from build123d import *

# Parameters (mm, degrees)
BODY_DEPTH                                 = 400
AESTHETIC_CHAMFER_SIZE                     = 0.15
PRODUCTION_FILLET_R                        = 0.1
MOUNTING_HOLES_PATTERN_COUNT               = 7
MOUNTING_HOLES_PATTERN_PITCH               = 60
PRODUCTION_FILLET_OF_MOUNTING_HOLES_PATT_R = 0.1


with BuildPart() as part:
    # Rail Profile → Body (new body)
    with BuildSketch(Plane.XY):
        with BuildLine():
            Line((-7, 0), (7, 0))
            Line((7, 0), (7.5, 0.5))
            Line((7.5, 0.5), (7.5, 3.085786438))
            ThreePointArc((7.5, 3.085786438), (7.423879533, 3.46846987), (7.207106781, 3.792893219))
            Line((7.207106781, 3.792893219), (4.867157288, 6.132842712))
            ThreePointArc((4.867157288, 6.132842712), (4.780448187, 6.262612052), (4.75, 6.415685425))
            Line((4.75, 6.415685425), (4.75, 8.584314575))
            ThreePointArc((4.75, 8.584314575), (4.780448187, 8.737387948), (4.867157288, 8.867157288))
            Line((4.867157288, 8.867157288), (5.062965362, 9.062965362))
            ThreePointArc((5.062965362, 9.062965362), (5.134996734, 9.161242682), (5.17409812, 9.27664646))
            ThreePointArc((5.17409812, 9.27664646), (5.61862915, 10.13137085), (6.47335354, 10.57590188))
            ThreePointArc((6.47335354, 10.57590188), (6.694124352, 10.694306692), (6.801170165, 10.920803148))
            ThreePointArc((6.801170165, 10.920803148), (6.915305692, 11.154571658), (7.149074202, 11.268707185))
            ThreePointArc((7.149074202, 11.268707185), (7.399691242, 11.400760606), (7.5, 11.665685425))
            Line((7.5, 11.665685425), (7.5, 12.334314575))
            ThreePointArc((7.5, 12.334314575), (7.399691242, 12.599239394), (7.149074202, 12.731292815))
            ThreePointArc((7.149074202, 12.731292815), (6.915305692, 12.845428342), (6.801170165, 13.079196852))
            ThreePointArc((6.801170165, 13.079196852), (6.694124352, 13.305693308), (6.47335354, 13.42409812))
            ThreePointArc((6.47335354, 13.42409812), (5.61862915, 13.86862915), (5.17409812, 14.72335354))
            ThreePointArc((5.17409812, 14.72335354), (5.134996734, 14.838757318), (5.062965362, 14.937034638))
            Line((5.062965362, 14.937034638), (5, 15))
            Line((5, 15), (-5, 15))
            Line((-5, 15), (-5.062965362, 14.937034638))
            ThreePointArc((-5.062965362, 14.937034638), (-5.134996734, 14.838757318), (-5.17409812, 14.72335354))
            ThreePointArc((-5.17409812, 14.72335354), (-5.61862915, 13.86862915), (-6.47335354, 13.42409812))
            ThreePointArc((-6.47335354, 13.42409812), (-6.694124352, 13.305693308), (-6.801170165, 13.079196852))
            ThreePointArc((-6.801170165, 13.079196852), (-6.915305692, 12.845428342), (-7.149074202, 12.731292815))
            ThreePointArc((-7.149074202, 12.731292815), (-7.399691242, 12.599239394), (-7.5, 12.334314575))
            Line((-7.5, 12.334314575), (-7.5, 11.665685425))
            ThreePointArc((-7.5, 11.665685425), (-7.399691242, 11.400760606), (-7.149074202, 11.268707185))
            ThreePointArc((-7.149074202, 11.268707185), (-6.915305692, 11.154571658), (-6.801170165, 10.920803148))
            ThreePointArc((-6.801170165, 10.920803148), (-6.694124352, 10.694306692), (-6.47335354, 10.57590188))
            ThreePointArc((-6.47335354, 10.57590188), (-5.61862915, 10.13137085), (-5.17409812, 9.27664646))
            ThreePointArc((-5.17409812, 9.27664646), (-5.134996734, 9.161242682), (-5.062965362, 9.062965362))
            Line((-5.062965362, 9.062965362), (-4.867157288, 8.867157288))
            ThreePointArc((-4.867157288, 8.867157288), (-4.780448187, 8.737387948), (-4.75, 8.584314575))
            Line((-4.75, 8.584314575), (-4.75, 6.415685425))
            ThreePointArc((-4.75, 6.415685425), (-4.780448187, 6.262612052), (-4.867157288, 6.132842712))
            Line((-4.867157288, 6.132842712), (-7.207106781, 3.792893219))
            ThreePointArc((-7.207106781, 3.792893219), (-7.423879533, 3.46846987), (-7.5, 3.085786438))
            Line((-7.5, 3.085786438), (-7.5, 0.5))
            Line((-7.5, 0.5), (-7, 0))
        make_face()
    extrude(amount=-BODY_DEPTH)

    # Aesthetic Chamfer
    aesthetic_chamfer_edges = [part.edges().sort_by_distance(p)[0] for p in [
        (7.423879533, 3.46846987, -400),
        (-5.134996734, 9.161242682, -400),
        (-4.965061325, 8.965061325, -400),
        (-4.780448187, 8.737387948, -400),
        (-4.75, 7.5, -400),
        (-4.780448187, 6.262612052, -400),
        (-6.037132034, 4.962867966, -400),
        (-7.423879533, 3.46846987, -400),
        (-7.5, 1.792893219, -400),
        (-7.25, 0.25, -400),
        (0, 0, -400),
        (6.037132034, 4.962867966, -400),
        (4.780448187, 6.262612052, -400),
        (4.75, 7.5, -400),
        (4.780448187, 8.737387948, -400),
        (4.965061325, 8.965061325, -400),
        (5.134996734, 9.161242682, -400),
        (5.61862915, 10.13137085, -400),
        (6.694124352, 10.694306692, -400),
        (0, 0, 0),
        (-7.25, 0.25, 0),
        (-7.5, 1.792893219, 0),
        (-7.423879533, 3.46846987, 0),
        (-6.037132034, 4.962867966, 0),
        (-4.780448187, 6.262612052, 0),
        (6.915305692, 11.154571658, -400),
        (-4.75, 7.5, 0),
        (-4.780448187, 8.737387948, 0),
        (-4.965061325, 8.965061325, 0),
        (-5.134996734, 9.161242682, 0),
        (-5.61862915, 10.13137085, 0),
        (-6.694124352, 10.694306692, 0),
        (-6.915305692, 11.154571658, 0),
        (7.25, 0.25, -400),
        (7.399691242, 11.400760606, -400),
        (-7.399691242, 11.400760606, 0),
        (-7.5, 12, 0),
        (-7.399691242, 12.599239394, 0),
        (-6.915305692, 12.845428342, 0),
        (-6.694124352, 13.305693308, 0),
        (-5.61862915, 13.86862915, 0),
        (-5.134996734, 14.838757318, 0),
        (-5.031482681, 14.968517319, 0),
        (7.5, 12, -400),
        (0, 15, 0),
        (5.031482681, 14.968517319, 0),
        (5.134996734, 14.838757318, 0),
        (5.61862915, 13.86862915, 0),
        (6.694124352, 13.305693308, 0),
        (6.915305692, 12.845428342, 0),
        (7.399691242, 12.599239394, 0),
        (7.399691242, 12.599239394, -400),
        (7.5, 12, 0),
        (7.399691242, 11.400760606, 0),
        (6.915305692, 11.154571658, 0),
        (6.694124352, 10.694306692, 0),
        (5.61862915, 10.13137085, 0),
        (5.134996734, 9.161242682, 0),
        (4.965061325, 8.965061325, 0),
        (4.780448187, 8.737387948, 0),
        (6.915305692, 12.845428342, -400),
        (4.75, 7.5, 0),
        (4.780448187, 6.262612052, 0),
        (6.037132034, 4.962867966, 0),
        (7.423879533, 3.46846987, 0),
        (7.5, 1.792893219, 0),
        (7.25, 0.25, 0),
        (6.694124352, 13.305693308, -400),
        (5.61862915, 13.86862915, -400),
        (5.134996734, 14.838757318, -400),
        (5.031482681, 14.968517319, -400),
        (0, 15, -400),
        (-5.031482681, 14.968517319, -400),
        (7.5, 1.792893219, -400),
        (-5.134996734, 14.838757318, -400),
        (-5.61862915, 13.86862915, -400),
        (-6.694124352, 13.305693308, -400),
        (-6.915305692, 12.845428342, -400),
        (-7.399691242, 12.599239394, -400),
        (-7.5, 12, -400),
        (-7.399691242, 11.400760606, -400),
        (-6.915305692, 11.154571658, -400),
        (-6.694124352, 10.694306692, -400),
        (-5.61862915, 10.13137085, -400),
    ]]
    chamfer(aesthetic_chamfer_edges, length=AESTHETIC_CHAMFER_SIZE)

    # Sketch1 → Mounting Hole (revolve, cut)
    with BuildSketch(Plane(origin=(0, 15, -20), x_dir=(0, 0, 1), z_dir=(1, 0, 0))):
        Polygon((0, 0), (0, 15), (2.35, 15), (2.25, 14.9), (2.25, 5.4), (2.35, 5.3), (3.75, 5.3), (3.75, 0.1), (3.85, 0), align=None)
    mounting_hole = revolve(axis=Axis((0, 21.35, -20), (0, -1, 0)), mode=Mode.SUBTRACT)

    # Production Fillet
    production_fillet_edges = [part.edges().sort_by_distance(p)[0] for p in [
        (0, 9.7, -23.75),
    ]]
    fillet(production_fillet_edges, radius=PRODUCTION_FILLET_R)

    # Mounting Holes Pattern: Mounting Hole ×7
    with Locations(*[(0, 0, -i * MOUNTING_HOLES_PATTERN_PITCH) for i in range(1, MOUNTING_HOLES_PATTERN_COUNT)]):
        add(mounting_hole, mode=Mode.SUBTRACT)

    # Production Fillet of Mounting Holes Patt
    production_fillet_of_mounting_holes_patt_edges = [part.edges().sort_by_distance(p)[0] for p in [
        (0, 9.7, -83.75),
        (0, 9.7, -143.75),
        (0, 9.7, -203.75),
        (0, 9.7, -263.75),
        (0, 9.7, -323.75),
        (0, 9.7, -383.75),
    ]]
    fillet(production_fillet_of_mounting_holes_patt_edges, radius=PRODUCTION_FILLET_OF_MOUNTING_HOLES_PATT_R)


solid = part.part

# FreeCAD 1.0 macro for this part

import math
import FreeCAD as App
import Part
import Sketcher
Q = App.Units.Quantity


def edges_at(feature, points):
    """Names of the edges that pass closest to the given points."""
    edges = feature.Shape.Edges
    near = lambda p: min(range(len(edges)), key=lambda i: edges[i].distToShape(Part.Vertex(*p))[0])
    return sorted({f"Edge{near(p) + 1}" for p in points})

doc = App.newDocument("Part")
body = doc.addObject("PartDesign::Body", "Body")

sketch1 = body.newObject("Sketcher::SketchObject", "Sketch")
sketch1.AttachmentSupport = (doc.getObject("XY_Plane"), [""])
sketch1.MapMode = "FlatFace"
sketch1.addGeometry(Part.LineSegment(App.Vector(-7, 0, 0), App.Vector(7, 0, 0)), False)
sketch1.addGeometry(Part.LineSegment(App.Vector(7, 0, 0), App.Vector(7.5, 0.5, 0)), False)
sketch1.addGeometry(Part.LineSegment(App.Vector(7.5, 0.5, 0), App.Vector(7.5, 3.09, 0)), False)
sketch1.addGeometry(Part.ArcOfCircle(Part.Circle(App.Vector(6.5, 3.09, 0), App.Vector(0, 0, 1), 1), math.radians(0), math.radians(45)), False)
sketch1.addGeometry(Part.LineSegment(App.Vector(7.21, 3.79, 0), App.Vector(4.87, 6.13, 0)), False)
sketch1.addGeometry(Part.ArcOfCircle(Part.Circle(App.Vector(5.15, 6.42, 0), App.Vector(0, 0, 1), 0.4), math.radians(180), math.radians(225)), False)
sketch1.addGeometry(Part.LineSegment(App.Vector(4.75, 6.42, 0), App.Vector(4.75, 8.58, 0)), False)
sketch1.addGeometry(Part.ArcOfCircle(Part.Circle(App.Vector(5.15, 8.58, 0), App.Vector(0, 0, 1), 0.4), math.radians(135), math.radians(180)), False)
sketch1.addGeometry(Part.LineSegment(App.Vector(4.87, 8.87, 0), App.Vector(5.06, 9.06, 0)), False)
sketch1.addGeometry(Part.ArcOfCircle(Part.Circle(App.Vector(4.78, 9.35, 0), App.Vector(0, 0, 1), 0.4), math.radians(-45), math.radians(-10)), False)
sketch1.addGeometry(Part.ArcOfCircle(Part.Circle(App.Vector(6.75, 9, 0), App.Vector(0, 0, 1), 1.6), math.radians(100), math.radians(170)), False)
sketch1.addGeometry(Part.ArcOfCircle(Part.Circle(App.Vector(6.4, 10.97, 0), App.Vector(0, 0, 1), 0.4), math.radians(-80), math.radians(-7)), False)
sketch1.addGeometry(Part.ArcOfCircle(Part.Circle(App.Vector(7.2, 10.87, 0), App.Vector(0, 0, 1), 0.4), math.radians(97), math.radians(173)), False)
sketch1.addGeometry(Part.ArcOfCircle(Part.Circle(App.Vector(7.1, 11.67, 0), App.Vector(0, 0, 1), 0.4), math.radians(-83), math.radians(0)), False)
sketch1.addGeometry(Part.LineSegment(App.Vector(7.5, 11.67, 0), App.Vector(7.5, 12.33, 0)), False)
sketch1.addGeometry(Part.ArcOfCircle(Part.Circle(App.Vector(7.1, 12.33, 0), App.Vector(0, 0, 1), 0.4), math.radians(0), math.radians(83)), False)
sketch1.addGeometry(Part.ArcOfCircle(Part.Circle(App.Vector(7.2, 13.13, 0), App.Vector(0, 0, 1), 0.4), math.radians(-173), math.radians(-97)), False)
sketch1.addGeometry(Part.ArcOfCircle(Part.Circle(App.Vector(6.4, 13.03, 0), App.Vector(0, 0, 1), 0.4), math.radians(7), math.radians(80)), False)
sketch1.addGeometry(Part.ArcOfCircle(Part.Circle(App.Vector(6.75, 15, 0), App.Vector(0, 0, 1), 1.6), math.radians(-170), math.radians(-100)), False)
sketch1.addGeometry(Part.ArcOfCircle(Part.Circle(App.Vector(4.78, 14.65, 0), App.Vector(0, 0, 1), 0.4), math.radians(10), math.radians(45)), False)
sketch1.addGeometry(Part.LineSegment(App.Vector(5.06, 14.94, 0), App.Vector(5, 15, 0)), False)
sketch1.addGeometry(Part.LineSegment(App.Vector(5, 15, 0), App.Vector(-5, 15, 0)), False)
sketch1.addGeometry(Part.LineSegment(App.Vector(-5, 15, 0), App.Vector(-5.06, 14.94, 0)), False)
sketch1.addGeometry(Part.ArcOfCircle(Part.Circle(App.Vector(-4.78, 14.65, 0), App.Vector(0, 0, 1), 0.4), math.radians(135), math.radians(170)), False)
sketch1.addGeometry(Part.ArcOfCircle(Part.Circle(App.Vector(-6.75, 15, 0), App.Vector(0, 0, 1), 1.6), math.radians(-80), math.radians(-10)), False)
sketch1.addGeometry(Part.ArcOfCircle(Part.Circle(App.Vector(-6.4, 13.03, 0), App.Vector(0, 0, 1), 0.4), math.radians(100), math.radians(173)), False)
sketch1.addGeometry(Part.ArcOfCircle(Part.Circle(App.Vector(-7.2, 13.13, 0), App.Vector(0, 0, 1), 0.4), math.radians(-83), math.radians(-7)), False)
sketch1.addGeometry(Part.ArcOfCircle(Part.Circle(App.Vector(-7.1, 12.33, 0), App.Vector(0, 0, 1), 0.4), math.radians(97), math.radians(180)), False)
sketch1.addGeometry(Part.LineSegment(App.Vector(-7.5, 12.33, 0), App.Vector(-7.5, 11.67, 0)), False)
sketch1.addGeometry(Part.ArcOfCircle(Part.Circle(App.Vector(-7.1, 11.67, 0), App.Vector(0, 0, 1), 0.4), math.radians(180), math.radians(263)), False)
sketch1.addGeometry(Part.ArcOfCircle(Part.Circle(App.Vector(-7.2, 10.87, 0), App.Vector(0, 0, 1), 0.4), math.radians(7), math.radians(83)), False)
sketch1.addGeometry(Part.ArcOfCircle(Part.Circle(App.Vector(-6.4, 10.97, 0), App.Vector(0, 0, 1), 0.4), math.radians(-173), math.radians(-100)), False)
sketch1.addGeometry(Part.ArcOfCircle(Part.Circle(App.Vector(-6.75, 9, 0), App.Vector(0, 0, 1), 1.6), math.radians(10), math.radians(80)), False)
sketch1.addGeometry(Part.ArcOfCircle(Part.Circle(App.Vector(-4.78, 9.35, 0), App.Vector(0, 0, 1), 0.4), math.radians(-170), math.radians(-135)), False)
sketch1.addGeometry(Part.LineSegment(App.Vector(-5.06, 9.06, 0), App.Vector(-4.87, 8.87, 0)), False)
sketch1.addGeometry(Part.ArcOfCircle(Part.Circle(App.Vector(-5.15, 8.58, 0), App.Vector(0, 0, 1), 0.4), math.radians(0), math.radians(45)), False)
sketch1.addGeometry(Part.LineSegment(App.Vector(-4.75, 8.58, 0), App.Vector(-4.75, 6.42, 0)), False)
sketch1.addGeometry(Part.ArcOfCircle(Part.Circle(App.Vector(-5.15, 6.42, 0), App.Vector(0, 0, 1), 0.4), math.radians(-45), math.radians(0)), False)
sketch1.addGeometry(Part.LineSegment(App.Vector(-4.87, 6.13, 0), App.Vector(-7.21, 3.79, 0)), False)
sketch1.addGeometry(Part.ArcOfCircle(Part.Circle(App.Vector(-6.5, 3.09, 0), App.Vector(0, 0, 1), 1), math.radians(135), math.radians(180)), False)
sketch1.addGeometry(Part.LineSegment(App.Vector(-7.5, 3.09, 0), App.Vector(-7.5, 0.5, 0)), False)
sketch1.addGeometry(Part.LineSegment(App.Vector(-7.5, 0.5, 0), App.Vector(-7, 0, 0)), False)
sketch1.addConstraint(Sketcher.Constraint("Coincident", 0, 2, 1, 1))
sketch1.addConstraint(Sketcher.Constraint("Coincident", 1, 2, 2, 1))
sketch1.addConstraint(Sketcher.Constraint("Tangent", 2, 2, 3, 1))
sketch1.addConstraint(Sketcher.Constraint("Tangent", 3, 2, 4, 1))
sketch1.addConstraint(Sketcher.Constraint("Tangent", 4, 2, 5, 2))
sketch1.addConstraint(Sketcher.Constraint("Tangent", 5, 1, 6, 1))
sketch1.addConstraint(Sketcher.Constraint("Tangent", 6, 2, 7, 2))
sketch1.addConstraint(Sketcher.Constraint("Tangent", 7, 1, 8, 1))
sketch1.addConstraint(Sketcher.Constraint("Tangent", 8, 2, 9, 1))
sketch1.addConstraint(Sketcher.Constraint("Tangent", 9, 2, 10, 2))
sketch1.addConstraint(Sketcher.Constraint("Tangent", 10, 1, 11, 1))
sketch1.addConstraint(Sketcher.Constraint("Tangent", 11, 2, 12, 2))
sketch1.addConstraint(Sketcher.Constraint("Tangent", 12, 1, 13, 1))
sketch1.addConstraint(Sketcher.Constraint("Tangent", 13, 2, 14, 1))
sketch1.addConstraint(Sketcher.Constraint("Tangent", 14, 2, 15, 1))
sketch1.addConstraint(Sketcher.Constraint("Tangent", 15, 2, 16, 2))
sketch1.addConstraint(Sketcher.Constraint("Tangent", 16, 1, 17, 1))
sketch1.addConstraint(Sketcher.Constraint("Tangent", 17, 2, 18, 2))
sketch1.addConstraint(Sketcher.Constraint("Tangent", 18, 1, 19, 1))
sketch1.addConstraint(Sketcher.Constraint("Tangent", 19, 2, 20, 1))
sketch1.addConstraint(Sketcher.Constraint("Coincident", 20, 2, 21, 1))
sketch1.addConstraint(Sketcher.Constraint("Coincident", 21, 2, 22, 1))
sketch1.addConstraint(Sketcher.Constraint("Tangent", 22, 2, 23, 1))
sketch1.addConstraint(Sketcher.Constraint("Tangent", 23, 2, 24, 2))
sketch1.addConstraint(Sketcher.Constraint("Tangent", 24, 1, 25, 1))
sketch1.addConstraint(Sketcher.Constraint("Tangent", 25, 2, 26, 2))
sketch1.addConstraint(Sketcher.Constraint("Tangent", 26, 1, 27, 1))
sketch1.addConstraint(Sketcher.Constraint("Tangent", 27, 2, 28, 1))
sketch1.addConstraint(Sketcher.Constraint("Tangent", 28, 2, 29, 1))
sketch1.addConstraint(Sketcher.Constraint("Tangent", 29, 2, 30, 2))
sketch1.addConstraint(Sketcher.Constraint("Tangent", 30, 1, 31, 1))
sketch1.addConstraint(Sketcher.Constraint("Tangent", 31, 2, 32, 2))
sketch1.addConstraint(Sketcher.Constraint("Tangent", 32, 1, 33, 1))
sketch1.addConstraint(Sketcher.Constraint("Tangent", 33, 2, 34, 1))
sketch1.addConstraint(Sketcher.Constraint("Tangent", 34, 2, 35, 2))
sketch1.addConstraint(Sketcher.Constraint("Tangent", 35, 1, 36, 1))
sketch1.addConstraint(Sketcher.Constraint("Tangent", 36, 2, 37, 2))
sketch1.addConstraint(Sketcher.Constraint("Tangent", 37, 1, 38, 1))
sketch1.addConstraint(Sketcher.Constraint("Tangent", 38, 2, 39, 1))
sketch1.addConstraint(Sketcher.Constraint("Tangent", 39, 2, 40, 1))
sketch1.addConstraint(Sketcher.Constraint("Coincident", 40, 2, 41, 1))
sketch1.addConstraint(Sketcher.Constraint("Coincident", 41, 2, 0, 1))
sketch1.addConstraint(Sketcher.Constraint("Horizontal", 0))
sketch1.addConstraint(Sketcher.Constraint("Vertical", 2))
sketch1.addConstraint(Sketcher.Constraint("Vertical", 6))
sketch1.addConstraint(Sketcher.Constraint("Vertical", 14))
sketch1.addConstraint(Sketcher.Constraint("Horizontal", 21))
sketch1.addConstraint(Sketcher.Constraint("Vertical", 28))
sketch1.addConstraint(Sketcher.Constraint("Vertical", 36))
sketch1.addConstraint(Sketcher.Constraint("Vertical", 40))
sketch1.addConstraint(Sketcher.Constraint("Equal", 5, 7))
sketch1.addConstraint(Sketcher.Constraint("Equal", 7, 9))
sketch1.addConstraint(Sketcher.Constraint("Equal", 9, 11))
sketch1.addConstraint(Sketcher.Constraint("Equal", 11, 12))
sketch1.addConstraint(Sketcher.Constraint("Equal", 12, 13))
sketch1.addConstraint(Sketcher.Constraint("Equal", 13, 15))
sketch1.addConstraint(Sketcher.Constraint("Equal", 15, 16))
sketch1.addConstraint(Sketcher.Constraint("Equal", 16, 17))
sketch1.addConstraint(Sketcher.Constraint("Equal", 10, 18))
sketch1.addConstraint(Sketcher.Constraint("Equal", 17, 19))
sketch1.addConstraint(Sketcher.Constraint("Equal", 19, 23))
sketch1.addConstraint(Sketcher.Constraint("Equal", 18, 24))
sketch1.addConstraint(Sketcher.Constraint("Equal", 23, 25))
sketch1.addConstraint(Sketcher.Constraint("Equal", 25, 26))
sketch1.addConstraint(Sketcher.Constraint("Equal", 26, 27))
sketch1.addConstraint(Sketcher.Constraint("Equal", 27, 29))
sketch1.addConstraint(Sketcher.Constraint("Equal", 29, 30))
sketch1.addConstraint(Sketcher.Constraint("Equal", 30, 31))
sketch1.addConstraint(Sketcher.Constraint("Equal", 24, 32))
sketch1.addConstraint(Sketcher.Constraint("Equal", 31, 33))
sketch1.addConstraint(Sketcher.Constraint("Equal", 33, 35))
sketch1.addConstraint(Sketcher.Constraint("Equal", 35, 37))
sketch1.addConstraint(Sketcher.Constraint("Equal", 3, 39))
sketch1.addConstraint(Sketcher.Constraint("Symmetric", 0, 2, 41, 2, -1, 1))
sketch1.addConstraint(Sketcher.Constraint("Symmetric", 19, 3, 23, 3, -2))
sketch1.addConstraint(Sketcher.Constraint("Symmetric", 17, 3, 25, 3, -2))
sketch1.addConstraint(Sketcher.Constraint("Symmetric", 15, 3, 27, 3, -2))
sketch1.addConstraint(Sketcher.Constraint("Symmetric", 12, 3, 30, 3, -2))
sketch1.addConstraint(Sketcher.Constraint("Symmetric", 10, 3, 32, 3, -2))
sketch1.addConstraint(Sketcher.Constraint("Symmetric", 7, 3, 35, 3, -2))
sketch1.addConstraint(Sketcher.Constraint("Symmetric", 3, 3, 39, 3, -2))
sketch1.addConstraint(Sketcher.Constraint("Perpendicular", 1, 4))
sketch1.addConstraint(Sketcher.Constraint("Perpendicular", 4, 8))
sketch1.addConstraint(Sketcher.Constraint("Perpendicular", 8, 20))
sketch1.addConstraint(Sketcher.Constraint("Perpendicular", 20, 22))
sketch1.addConstraint(Sketcher.Constraint("Perpendicular", 22, 34))
sketch1.addConstraint(Sketcher.Constraint("Perpendicular", 34, 38))
sketch1.addConstraint(Sketcher.Constraint("Perpendicular", 38, 41))
sketch1.addConstraint(Sketcher.Constraint("Horizontal", 9, 3, 33, 3))
sketch1.addConstraint(Sketcher.Constraint("Horizontal", 24, 3, 20, 2))
sketch1.addConstraint(Sketcher.Constraint("Vertical", 12, 3, 16, 3))
sketch1.addConstraint(Sketcher.Constraint("Vertical", 11, 3, 17, 3))
sketch1.addConstraint(Sketcher.Constraint("Vertical", 10, 3, 18, 3))
sketch1.addConstraint(Sketcher.Constraint("Vertical", 9, 3, 19, 3))
sketch1.addConstraint(Sketcher.Constraint("Vertical", 2, 2, 13, 2))
sketch1.addConstraint(Sketcher.Constraint("Radius", 3, Q("1 mm")))
sketch1.addConstraint(Sketcher.Constraint("Radius", 5, Q("0.4 mm")))
sketch1.addConstraint(Sketcher.Constraint("Radius", 10, Q("1.6 mm")))
sketch1.addConstraint(Sketcher.Constraint("DistanceX", 0, 1, 0, 2, Q("14 mm")))
sketch1.addConstraint(Sketcher.Constraint("DistanceX", 21, 2, 21, 1, Q("10 mm")))
sketch1.addConstraint(Sketcher.Constraint("DistanceY", -1, 1, 10, 3, Q("9 mm")))
sketch1.addConstraint(Sketcher.Constraint("DistanceY", -1, 1, 18, 3, Q("15 mm")))
sketch1.addConstraint(Sketcher.Constraint("DistanceX", -1, 1, 3, 3, Q("6.5 mm")))
sketch1.addConstraint(Sketcher.Constraint("DistanceX", -1, 1, 5, 3, Q("5.15 mm")))
sketch1.addConstraint(Sketcher.Constraint("DistanceX", -1, 1, 10, 3, Q("6.75 mm")))
sketch1.addConstraint(Sketcher.Constraint("DistanceY", 6, 1, 6, 2, Q("2.168629 mm")))
sketch1.addConstraint(Sketcher.Constraint("DistanceY", 14, 1, 14, 2, Q("0.668629 mm")))
sketch1.addConstraint(Sketcher.Constraint("DistanceY", -1, 1, 10, 1, Q("10.575902 mm")))
pad1 = body.newObject("PartDesign::Pad", "Pad")
pad1.Profile = sketch1
pad1.Length = 400
pad1.Reversed = True
doc.recompute()

chamfer = body.newObject("PartDesign::Chamfer", "Chamfer")
chamfer.Base = (pad1, edges_at(pad1, [
    (7.424, 3.468, -400),
    (-5.135, 9.161, -400),
    (-4.965, 8.965, -400),
    (-4.78, 8.737, -400),
    (-4.75, 7.5, -400),
    (-4.78, 6.263, -400),
    (-6.037, 4.963, -400),
    (-7.424, 3.468, -400),
    (-7.5, 1.793, -400),
    (-7.25, 0.25, -400),
    (0, 0, -400),
    (6.037, 4.963, -400),
    (4.78, 6.263, -400),
    (4.75, 7.5, -400),
    (4.78, 8.737, -400),
    (4.965, 8.965, -400),
    (5.135, 9.161, -400),
    (5.619, 10.131, -400),
    (6.694, 10.694, -400),
    (0, 0, 0),
    (-7.25, 0.25, 0),
    (-7.5, 1.793, 0),
    (-7.424, 3.468, 0),
    (-6.037, 4.963, 0),
    (-4.78, 6.263, 0),
    (6.915, 11.155, -400),
    (-4.75, 7.5, 0),
    (-4.78, 8.737, 0),
    (-4.965, 8.965, 0),
    (-5.135, 9.161, 0),
    (-5.619, 10.131, 0),
    (-6.694, 10.694, 0),
    (-6.915, 11.155, 0),
    (7.25, 0.25, -400),
    (7.4, 11.401, -400),
    (-7.4, 11.401, 0),
    (-7.5, 12, 0),
    (-7.4, 12.599, 0),
    (-6.915, 12.845, 0),
    (-6.694, 13.306, 0),
    (-5.619, 13.869, 0),
    (-5.135, 14.839, 0),
    (-5.031, 14.969, 0),
    (7.5, 12, -400),
    (0, 15, 0),
    (5.031, 14.969, 0),
    (5.135, 14.839, 0),
    (5.619, 13.869, 0),
    (6.694, 13.306, 0),
    (6.915, 12.845, 0),
    (7.4, 12.599, 0),
    (7.4, 12.599, -400),
    (7.5, 12, 0),
    (7.4, 11.401, 0),
    (6.915, 11.155, 0),
    (6.694, 10.694, 0),
    (5.619, 10.131, 0),
    (5.135, 9.161, 0),
    (4.965, 8.965, 0),
    (4.78, 8.737, 0),
    (6.915, 12.845, -400),
    (4.75, 7.5, 0),
    (4.78, 6.263, 0),
    (6.037, 4.963, 0),
    (7.424, 3.468, 0),
    (7.5, 1.793, 0),
    (7.25, 0.25, 0),
    (6.694, 13.306, -400),
    (5.619, 13.869, -400),
    (5.135, 14.839, -400),
    (5.031, 14.969, -400),
    (0, 15, -400),
    (-5.031, 14.969, -400),
    (7.5, 1.793, -400),
    (-5.135, 14.839, -400),
    (-5.619, 13.869, -400),
    (-6.694, 13.306, -400),
    (-6.915, 12.845, -400),
    (-7.4, 12.599, -400),
    (-7.5, 12, -400),
    (-7.4, 11.401, -400),
    (-6.915, 11.155, -400),
    (-6.694, 10.694, -400),
    (-5.619, 10.131, -400),
]))
chamfer.Size = 0.15

sketch2 = body.newObject("Sketcher::SketchObject", "Sketch001")
sketch2.AttachmentSupport = (doc.getObject("YZ_Plane"), [""])
sketch2.MapMode = "FlatFace"
sketch2.addGeometry(Part.LineSegment(App.Vector(0, -20, 0), App.Vector(15, -20, 0)), False)
sketch2.addGeometry(Part.LineSegment(App.Vector(15, -20, 0), App.Vector(15, -16.15, 0)), False)
sketch2.addGeometry(Part.LineSegment(App.Vector(15, -16.15, 0), App.Vector(14.9, -16.25, 0)), False)
sketch2.addGeometry(Part.LineSegment(App.Vector(14.9, -16.25, 0), App.Vector(9.7, -16.25, 0)), False)
sketch2.addGeometry(Part.LineSegment(App.Vector(9.7, -16.25, 0), App.Vector(9.7, -17.65, 0)), False)
sketch2.addGeometry(Part.LineSegment(App.Vector(9.7, -17.65, 0), App.Vector(9.6, -17.75, 0)), False)
sketch2.addGeometry(Part.LineSegment(App.Vector(9.6, -17.75, 0), App.Vector(0.1, -17.75, 0)), False)
sketch2.addGeometry(Part.LineSegment(App.Vector(0.1, -17.75, 0), App.Vector(0, -17.65, 0)), False)
sketch2.addGeometry(Part.LineSegment(App.Vector(0, -17.65, 0), App.Vector(0, -20, 0)), False)
sketch2.addGeometry(Part.LineSegment(App.Vector(15, -20, 0), App.Vector(0, -20, 0)), True)
sketch2.addConstraint(Sketcher.Constraint("Coincident", 0, 2, 1, 1))
sketch2.addConstraint(Sketcher.Constraint("Coincident", 1, 2, 2, 1))
sketch2.addConstraint(Sketcher.Constraint("Coincident", 2, 2, 3, 1))
sketch2.addConstraint(Sketcher.Constraint("Coincident", 3, 2, 4, 1))
sketch2.addConstraint(Sketcher.Constraint("Coincident", 4, 2, 5, 1))
sketch2.addConstraint(Sketcher.Constraint("Coincident", 5, 2, 6, 1))
sketch2.addConstraint(Sketcher.Constraint("Coincident", 6, 2, 7, 1))
sketch2.addConstraint(Sketcher.Constraint("Coincident", 7, 2, 8, 1))
sketch2.addConstraint(Sketcher.Constraint("Coincident", 8, 2, 0, 1))
sketch2.addConstraint(Sketcher.Constraint("Horizontal", 0))
sketch2.addConstraint(Sketcher.Constraint("Vertical", 1))
sketch2.addConstraint(Sketcher.Constraint("Horizontal", 3))
sketch2.addConstraint(Sketcher.Constraint("Vertical", 4))
sketch2.addConstraint(Sketcher.Constraint("Horizontal", 6))
sketch2.addConstraint(Sketcher.Constraint("Vertical", 8))
sketch2.addConstraint(Sketcher.Constraint("Horizontal", 9))
sketch2.addConstraint(Sketcher.Constraint("Coincident", 9, 1, 0, 2))
sketch2.addConstraint(Sketcher.Constraint("PointOnObject", 7, 2, -2))
sketch2.addConstraint(Sketcher.Constraint("PointOnObject", 9, 2, -2))
sketch2.addConstraint(Sketcher.Constraint("Parallel", 2, 5))
sketch2.addConstraint(Sketcher.Constraint("Perpendicular", 5, 7))
sketch2.addConstraint(Sketcher.Constraint("Horizontal", 4, 2, 7, 2))
sketch2.addConstraint(Sketcher.Constraint("Equal", 2, 5))
sketch2.addConstraint(Sketcher.Constraint("Equal", 5, 7))
sketch2.addConstraint(Sketcher.Constraint("DistanceX", 0, 1, 0, 2, Q("15 mm")))
sketch2.addConstraint(Sketcher.Constraint("DistanceX", 3, 2, 3, 1, Q("5.2 mm")))
sketch2.addConstraint(Sketcher.Constraint("DistanceX", 6, 2, 6, 1, Q("9.5 mm")))
sketch2.addConstraint(Sketcher.Constraint("DistanceY", 4, 2, 4, 1, Q("1.4 mm")))
sketch2.addConstraint(Sketcher.Constraint("DistanceY", 0, 2, -1, 1, Q("20 mm")))
sketch2.addConstraint(Sketcher.Constraint("DistanceY", 1, 1, 1, 2, Q("3.85 mm")))
groove = body.newObject("PartDesign::Groove", "Groove")
groove.Profile = sketch2
groove.ReferenceAxis = (sketch2, ["Axis0"])
groove.Angle = 360
doc.recompute()

fillet = body.newObject("PartDesign::Fillet", "Fillet")
fillet.Base = (groove, edges_at(groove, [(0, 9.7, -23.75)]))
fillet.Radius = 0.1
doc.recompute()

linearpattern = body.newObject("PartDesign::LinearPattern", "LinearPattern")
linearpattern.Originals = [groove]
linearpattern.Direction = (doc.getObject("Z_Axis"), [""])
linearpattern.Mode = "offset"
linearpattern.Offset = 60
linearpattern.Occurrences = 7
linearpattern.Reversed = True
body.Tip = linearpattern
doc.recompute()

fillet2 = body.newObject("PartDesign::Fillet", "Fillet001")
fillet2.Base = (linearpattern, edges_at(linearpattern, [
    (0, 9.7, -83.75),
    (0, 9.7, -143.75),
    (0, 9.7, -203.75),
    (0, 9.7, -263.75),
    (0, 9.7, -323.75),
    (0, 9.7, -383.75),
]))
fillet2.Radius = 0.1

doc.recompute()
